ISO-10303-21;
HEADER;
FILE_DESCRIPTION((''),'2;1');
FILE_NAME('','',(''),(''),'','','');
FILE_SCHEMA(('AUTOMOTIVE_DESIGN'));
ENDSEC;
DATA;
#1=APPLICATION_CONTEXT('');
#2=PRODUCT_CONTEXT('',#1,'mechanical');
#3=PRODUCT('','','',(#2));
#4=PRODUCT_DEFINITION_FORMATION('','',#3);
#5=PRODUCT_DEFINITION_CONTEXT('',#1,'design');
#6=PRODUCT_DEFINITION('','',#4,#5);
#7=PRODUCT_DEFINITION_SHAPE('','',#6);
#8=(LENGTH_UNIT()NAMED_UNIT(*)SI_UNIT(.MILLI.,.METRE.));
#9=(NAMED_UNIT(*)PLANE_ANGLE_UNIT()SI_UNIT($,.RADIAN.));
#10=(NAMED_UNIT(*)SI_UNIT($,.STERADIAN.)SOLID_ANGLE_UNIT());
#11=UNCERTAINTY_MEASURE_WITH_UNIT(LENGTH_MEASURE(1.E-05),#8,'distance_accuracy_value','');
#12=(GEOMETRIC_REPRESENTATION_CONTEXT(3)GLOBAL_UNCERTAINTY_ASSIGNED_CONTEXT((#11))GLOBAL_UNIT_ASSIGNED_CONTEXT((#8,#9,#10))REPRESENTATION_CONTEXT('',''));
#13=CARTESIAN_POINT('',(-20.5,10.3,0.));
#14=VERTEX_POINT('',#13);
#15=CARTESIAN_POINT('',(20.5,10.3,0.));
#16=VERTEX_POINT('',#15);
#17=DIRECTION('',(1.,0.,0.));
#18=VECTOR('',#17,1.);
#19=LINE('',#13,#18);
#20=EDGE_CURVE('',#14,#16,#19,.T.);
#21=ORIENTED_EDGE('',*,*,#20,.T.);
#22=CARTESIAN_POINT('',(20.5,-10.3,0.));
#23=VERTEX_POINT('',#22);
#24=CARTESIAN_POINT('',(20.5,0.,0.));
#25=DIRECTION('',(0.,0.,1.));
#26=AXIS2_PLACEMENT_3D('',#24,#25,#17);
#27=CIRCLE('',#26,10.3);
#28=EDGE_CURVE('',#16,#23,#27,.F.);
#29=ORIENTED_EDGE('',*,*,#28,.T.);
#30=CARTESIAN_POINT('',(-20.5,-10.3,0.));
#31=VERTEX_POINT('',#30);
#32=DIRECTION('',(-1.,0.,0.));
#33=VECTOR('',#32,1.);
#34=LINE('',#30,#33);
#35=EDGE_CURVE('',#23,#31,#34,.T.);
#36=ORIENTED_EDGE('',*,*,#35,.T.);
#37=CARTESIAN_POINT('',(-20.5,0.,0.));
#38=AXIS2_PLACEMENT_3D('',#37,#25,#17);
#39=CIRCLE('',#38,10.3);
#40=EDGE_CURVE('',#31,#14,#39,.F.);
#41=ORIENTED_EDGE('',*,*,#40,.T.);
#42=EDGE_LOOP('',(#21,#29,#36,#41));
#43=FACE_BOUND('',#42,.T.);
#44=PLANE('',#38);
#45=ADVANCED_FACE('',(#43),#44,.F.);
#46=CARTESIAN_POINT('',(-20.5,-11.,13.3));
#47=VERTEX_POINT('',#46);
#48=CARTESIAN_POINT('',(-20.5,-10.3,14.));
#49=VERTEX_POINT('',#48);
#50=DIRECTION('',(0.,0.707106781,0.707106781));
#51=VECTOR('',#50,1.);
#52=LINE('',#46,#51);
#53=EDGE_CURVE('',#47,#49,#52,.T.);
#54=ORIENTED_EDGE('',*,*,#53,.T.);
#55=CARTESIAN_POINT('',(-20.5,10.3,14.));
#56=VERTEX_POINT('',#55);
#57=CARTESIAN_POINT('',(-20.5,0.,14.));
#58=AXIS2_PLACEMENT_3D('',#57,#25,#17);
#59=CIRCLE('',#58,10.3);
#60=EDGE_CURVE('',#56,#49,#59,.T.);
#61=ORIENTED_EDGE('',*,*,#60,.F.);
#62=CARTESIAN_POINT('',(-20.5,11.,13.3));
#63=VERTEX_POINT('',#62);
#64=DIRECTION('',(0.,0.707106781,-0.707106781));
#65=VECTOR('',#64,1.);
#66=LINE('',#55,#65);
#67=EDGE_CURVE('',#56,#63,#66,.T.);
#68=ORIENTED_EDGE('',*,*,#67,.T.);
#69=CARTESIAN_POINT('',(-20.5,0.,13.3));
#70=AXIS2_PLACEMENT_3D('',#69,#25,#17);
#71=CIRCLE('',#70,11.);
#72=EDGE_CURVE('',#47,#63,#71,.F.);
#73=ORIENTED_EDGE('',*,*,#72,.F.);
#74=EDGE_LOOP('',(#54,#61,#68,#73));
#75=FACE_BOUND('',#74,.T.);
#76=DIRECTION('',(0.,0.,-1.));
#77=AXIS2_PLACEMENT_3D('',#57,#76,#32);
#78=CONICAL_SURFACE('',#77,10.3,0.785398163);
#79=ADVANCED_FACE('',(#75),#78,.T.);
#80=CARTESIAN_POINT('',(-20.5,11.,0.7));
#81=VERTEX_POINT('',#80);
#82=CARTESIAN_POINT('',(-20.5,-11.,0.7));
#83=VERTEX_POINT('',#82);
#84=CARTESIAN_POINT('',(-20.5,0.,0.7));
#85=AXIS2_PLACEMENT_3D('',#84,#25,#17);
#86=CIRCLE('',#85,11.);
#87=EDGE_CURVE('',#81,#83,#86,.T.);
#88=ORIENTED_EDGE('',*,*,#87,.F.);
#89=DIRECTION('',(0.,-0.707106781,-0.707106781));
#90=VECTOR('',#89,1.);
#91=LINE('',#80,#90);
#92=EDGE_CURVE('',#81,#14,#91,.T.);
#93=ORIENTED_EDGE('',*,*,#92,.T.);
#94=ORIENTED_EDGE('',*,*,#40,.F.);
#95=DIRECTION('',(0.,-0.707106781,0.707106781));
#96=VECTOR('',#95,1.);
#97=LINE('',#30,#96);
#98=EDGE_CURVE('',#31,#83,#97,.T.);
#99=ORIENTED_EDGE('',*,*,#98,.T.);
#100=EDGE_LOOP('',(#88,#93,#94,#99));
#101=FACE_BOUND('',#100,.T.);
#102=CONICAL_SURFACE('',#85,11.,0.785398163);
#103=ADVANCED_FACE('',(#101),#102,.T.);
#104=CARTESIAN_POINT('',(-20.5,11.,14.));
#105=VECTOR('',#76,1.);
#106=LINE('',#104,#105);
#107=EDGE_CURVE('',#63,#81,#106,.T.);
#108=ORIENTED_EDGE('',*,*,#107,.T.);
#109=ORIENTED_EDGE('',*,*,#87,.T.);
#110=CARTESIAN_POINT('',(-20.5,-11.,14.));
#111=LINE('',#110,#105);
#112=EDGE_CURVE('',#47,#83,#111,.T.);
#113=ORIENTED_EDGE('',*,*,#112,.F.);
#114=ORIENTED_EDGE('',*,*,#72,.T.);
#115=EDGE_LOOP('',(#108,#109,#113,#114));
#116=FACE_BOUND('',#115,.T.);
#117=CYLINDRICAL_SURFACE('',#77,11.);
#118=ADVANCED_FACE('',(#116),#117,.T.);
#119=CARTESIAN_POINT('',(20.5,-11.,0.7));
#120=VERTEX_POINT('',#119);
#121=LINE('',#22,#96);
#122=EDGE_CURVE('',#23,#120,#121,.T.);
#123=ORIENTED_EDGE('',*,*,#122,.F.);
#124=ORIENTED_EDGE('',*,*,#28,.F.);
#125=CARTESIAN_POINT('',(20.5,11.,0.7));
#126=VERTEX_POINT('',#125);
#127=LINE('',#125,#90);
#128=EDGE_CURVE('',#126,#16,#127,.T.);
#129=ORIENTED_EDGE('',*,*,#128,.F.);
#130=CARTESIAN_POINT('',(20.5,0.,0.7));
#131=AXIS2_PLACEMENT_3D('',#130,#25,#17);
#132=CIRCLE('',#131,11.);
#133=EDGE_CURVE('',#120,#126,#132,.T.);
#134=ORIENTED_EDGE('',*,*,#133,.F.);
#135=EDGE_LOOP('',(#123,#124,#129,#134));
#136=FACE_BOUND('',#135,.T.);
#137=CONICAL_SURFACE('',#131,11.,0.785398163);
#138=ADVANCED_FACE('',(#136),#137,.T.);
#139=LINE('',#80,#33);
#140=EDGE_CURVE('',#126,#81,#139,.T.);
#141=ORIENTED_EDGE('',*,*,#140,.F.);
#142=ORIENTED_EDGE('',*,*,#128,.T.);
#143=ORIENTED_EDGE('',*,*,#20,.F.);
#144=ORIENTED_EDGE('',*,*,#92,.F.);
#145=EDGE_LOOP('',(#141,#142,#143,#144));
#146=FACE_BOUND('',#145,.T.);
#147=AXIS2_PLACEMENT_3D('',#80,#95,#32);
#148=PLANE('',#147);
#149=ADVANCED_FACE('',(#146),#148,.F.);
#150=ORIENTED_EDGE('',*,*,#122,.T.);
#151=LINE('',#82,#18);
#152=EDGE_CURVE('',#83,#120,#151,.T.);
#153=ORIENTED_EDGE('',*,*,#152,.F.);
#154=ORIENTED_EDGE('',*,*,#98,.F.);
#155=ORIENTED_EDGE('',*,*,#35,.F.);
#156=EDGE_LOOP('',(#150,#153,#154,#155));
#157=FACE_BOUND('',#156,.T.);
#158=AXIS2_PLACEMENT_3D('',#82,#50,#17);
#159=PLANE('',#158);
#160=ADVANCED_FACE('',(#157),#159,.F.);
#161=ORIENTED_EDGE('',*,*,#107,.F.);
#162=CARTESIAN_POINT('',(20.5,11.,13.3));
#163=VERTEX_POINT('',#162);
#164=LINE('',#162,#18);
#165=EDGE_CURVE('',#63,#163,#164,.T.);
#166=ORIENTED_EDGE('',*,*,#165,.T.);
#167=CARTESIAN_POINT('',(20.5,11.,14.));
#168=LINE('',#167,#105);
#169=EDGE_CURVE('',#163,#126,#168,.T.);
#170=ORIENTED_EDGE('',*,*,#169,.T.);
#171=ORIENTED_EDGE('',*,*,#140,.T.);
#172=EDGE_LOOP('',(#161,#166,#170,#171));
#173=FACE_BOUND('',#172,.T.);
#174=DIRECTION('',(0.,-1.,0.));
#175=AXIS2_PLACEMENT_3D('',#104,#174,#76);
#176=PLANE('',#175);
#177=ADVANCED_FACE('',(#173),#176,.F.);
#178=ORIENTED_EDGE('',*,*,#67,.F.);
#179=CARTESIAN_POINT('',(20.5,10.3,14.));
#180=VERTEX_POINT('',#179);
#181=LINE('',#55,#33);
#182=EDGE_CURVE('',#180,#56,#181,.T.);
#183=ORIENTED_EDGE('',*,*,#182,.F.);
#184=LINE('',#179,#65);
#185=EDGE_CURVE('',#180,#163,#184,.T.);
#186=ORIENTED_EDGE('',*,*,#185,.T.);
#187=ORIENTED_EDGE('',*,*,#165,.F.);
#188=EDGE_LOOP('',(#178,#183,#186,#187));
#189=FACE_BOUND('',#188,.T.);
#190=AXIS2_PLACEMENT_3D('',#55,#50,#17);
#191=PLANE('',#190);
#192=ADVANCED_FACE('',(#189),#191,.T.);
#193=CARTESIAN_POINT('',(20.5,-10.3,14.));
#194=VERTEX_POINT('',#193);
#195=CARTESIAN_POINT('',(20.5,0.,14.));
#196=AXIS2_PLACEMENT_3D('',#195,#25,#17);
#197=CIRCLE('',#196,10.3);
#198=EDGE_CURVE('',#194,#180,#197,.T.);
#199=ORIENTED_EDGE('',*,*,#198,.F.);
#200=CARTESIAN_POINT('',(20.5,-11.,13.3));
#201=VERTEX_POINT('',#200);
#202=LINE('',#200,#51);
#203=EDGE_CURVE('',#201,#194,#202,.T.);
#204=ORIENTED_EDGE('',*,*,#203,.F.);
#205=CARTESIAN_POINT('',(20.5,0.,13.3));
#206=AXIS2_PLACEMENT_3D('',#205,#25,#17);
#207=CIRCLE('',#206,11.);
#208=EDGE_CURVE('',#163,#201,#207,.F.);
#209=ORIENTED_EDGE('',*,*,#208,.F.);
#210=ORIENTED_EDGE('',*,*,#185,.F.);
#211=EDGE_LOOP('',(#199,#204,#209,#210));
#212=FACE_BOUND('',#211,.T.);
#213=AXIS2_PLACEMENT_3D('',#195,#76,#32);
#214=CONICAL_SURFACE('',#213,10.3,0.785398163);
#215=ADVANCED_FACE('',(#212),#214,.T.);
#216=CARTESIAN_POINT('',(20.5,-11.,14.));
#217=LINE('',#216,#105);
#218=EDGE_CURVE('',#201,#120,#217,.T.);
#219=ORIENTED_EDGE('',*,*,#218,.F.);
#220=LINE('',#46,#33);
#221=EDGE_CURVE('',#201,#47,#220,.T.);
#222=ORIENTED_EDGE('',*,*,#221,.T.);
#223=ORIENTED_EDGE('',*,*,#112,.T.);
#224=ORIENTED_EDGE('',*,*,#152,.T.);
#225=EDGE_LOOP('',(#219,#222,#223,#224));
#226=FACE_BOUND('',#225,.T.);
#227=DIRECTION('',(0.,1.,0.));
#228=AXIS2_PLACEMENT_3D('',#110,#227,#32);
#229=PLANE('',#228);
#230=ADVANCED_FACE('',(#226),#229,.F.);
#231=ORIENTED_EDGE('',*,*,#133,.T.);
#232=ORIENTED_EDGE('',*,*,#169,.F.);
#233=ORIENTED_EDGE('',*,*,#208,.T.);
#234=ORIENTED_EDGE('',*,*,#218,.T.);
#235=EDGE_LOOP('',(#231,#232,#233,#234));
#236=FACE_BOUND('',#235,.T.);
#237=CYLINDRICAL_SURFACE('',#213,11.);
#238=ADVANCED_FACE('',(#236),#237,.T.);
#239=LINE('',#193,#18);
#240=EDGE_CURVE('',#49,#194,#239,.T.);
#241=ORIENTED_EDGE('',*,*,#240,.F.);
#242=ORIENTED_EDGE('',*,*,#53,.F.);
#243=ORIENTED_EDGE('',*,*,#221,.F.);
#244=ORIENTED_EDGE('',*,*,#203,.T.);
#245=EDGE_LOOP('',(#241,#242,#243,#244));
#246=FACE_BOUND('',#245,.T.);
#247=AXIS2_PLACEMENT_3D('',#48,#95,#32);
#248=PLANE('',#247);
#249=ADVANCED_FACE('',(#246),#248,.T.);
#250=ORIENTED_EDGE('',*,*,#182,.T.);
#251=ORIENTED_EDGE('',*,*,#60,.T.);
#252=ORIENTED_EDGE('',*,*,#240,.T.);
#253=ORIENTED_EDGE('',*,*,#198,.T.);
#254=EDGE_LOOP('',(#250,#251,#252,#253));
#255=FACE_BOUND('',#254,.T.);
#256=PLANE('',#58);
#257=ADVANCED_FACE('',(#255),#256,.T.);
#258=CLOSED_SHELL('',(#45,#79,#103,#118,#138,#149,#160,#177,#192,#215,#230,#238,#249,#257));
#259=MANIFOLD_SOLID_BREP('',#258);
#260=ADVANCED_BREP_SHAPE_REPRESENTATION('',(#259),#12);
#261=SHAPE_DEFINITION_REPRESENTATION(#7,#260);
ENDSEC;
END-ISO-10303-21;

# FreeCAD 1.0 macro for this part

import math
import FreeCAD as App
import Part
import Sketcher
from FreeCAD import Vector


def edges_at(feature, points):
    """Names of the edges that pass closest to the given points."""
    edges = feature.Shape.Edges
    near = lambda p: min(range(len(edges)), key=lambda i: edges[i].distToShape(Part.Vertex(*p))[0])
    return sorted({f"Edge{near(p) + 1}" for p in points})

doc = App.newDocument("Part")
params = doc.addObject("Spreadsheet::Sheet", "Params")
for row, (alias, value) in enumerate([
    ("sketch1_radius", "11 mm"),
    ("sketch1_width", "41 mm"),
    ("pad1_length", "14 mm"),
    ("chamfer_size", "0.7 mm"),
], start=1):
    params.set(f"A{row}", alias)
    params.set(f"B{row}", "=" + value)
    params.setAlias(f"B{row}", alias)

body = doc.addObject("PartDesign::Body", "Body")

# Sketch on XY plane
sketch1 = body.newObject("Sketcher::SketchObject", "Sketch")
sketch1.AttachmentSupport = (doc.getObject("XY_Plane"), [""])
sketch1.MapMode = "FlatFace"
sketch1.addGeometry([
    Part.LineSegment(Vector(20, 11, 0), Vector(-20, 11, 0)),
    Part.ArcOfCircle(Part.Circle(Vector(-20, 0, 0), Vector(0, 0, 1), 11), math.radians(90), math.radians(270)),
    Part.LineSegment(Vector(-20, -11, 0), Vector(20, -11, 0)),
    Part.ArcOfCircle(Part.Circle(Vector(20, 0, 0), Vector(0, 0, 1), 11), math.radians(-90), math.radians(90)),
], False)
sketch1.addConstraint([
    Sketcher.Constraint("Tangent", 0, 2, 1, 1),
    Sketcher.Constraint("Tangent", 1, 2, 2, 1),
    Sketcher.Constraint("Tangent", 2, 2, 3, 1),
    Sketcher.Constraint("Tangent", 3, 2, 0, 1),
    Sketcher.Constraint("Horizontal", 0),
    Sketcher.Constraint("Horizontal", 2),
    Sketcher.Constraint("Symmetric", 1, 3, 3, 3, -1, 1),
    Sketcher.Constraint("Radius", 1, 11.0),
    Sketcher.Constraint("DistanceX", 0, 2, 0, 1, 41.0),
])
sketch1.setExpression("Constraints[7]", "Params.sketch1_radius")
sketch1.setExpression("Constraints[8]", "Params.sketch1_width")
pad1 = body.newObject("PartDesign::Pad", "Pad")
pad1.Profile = sketch1
pad1.setExpression("Length", "Params.pad1_length")
doc.recompute()

chamfer = body.newObject("PartDesign::Chamfer", "Chamfer")
chamfer.Base = (pad1, edges_at(pad1, [
    (31.5, 0, 14),
    (0, 11, 14),
    (-31.5, 0, 14),
    (0, 11, 0),
    (31.5, 0, 0),
    (0, -11, 0),
    (-31.5, 0, 0),
    (0, -11, 14),
]))
chamfer.setExpression("Size", "Params.chamfer_size")

doc.recompute()
